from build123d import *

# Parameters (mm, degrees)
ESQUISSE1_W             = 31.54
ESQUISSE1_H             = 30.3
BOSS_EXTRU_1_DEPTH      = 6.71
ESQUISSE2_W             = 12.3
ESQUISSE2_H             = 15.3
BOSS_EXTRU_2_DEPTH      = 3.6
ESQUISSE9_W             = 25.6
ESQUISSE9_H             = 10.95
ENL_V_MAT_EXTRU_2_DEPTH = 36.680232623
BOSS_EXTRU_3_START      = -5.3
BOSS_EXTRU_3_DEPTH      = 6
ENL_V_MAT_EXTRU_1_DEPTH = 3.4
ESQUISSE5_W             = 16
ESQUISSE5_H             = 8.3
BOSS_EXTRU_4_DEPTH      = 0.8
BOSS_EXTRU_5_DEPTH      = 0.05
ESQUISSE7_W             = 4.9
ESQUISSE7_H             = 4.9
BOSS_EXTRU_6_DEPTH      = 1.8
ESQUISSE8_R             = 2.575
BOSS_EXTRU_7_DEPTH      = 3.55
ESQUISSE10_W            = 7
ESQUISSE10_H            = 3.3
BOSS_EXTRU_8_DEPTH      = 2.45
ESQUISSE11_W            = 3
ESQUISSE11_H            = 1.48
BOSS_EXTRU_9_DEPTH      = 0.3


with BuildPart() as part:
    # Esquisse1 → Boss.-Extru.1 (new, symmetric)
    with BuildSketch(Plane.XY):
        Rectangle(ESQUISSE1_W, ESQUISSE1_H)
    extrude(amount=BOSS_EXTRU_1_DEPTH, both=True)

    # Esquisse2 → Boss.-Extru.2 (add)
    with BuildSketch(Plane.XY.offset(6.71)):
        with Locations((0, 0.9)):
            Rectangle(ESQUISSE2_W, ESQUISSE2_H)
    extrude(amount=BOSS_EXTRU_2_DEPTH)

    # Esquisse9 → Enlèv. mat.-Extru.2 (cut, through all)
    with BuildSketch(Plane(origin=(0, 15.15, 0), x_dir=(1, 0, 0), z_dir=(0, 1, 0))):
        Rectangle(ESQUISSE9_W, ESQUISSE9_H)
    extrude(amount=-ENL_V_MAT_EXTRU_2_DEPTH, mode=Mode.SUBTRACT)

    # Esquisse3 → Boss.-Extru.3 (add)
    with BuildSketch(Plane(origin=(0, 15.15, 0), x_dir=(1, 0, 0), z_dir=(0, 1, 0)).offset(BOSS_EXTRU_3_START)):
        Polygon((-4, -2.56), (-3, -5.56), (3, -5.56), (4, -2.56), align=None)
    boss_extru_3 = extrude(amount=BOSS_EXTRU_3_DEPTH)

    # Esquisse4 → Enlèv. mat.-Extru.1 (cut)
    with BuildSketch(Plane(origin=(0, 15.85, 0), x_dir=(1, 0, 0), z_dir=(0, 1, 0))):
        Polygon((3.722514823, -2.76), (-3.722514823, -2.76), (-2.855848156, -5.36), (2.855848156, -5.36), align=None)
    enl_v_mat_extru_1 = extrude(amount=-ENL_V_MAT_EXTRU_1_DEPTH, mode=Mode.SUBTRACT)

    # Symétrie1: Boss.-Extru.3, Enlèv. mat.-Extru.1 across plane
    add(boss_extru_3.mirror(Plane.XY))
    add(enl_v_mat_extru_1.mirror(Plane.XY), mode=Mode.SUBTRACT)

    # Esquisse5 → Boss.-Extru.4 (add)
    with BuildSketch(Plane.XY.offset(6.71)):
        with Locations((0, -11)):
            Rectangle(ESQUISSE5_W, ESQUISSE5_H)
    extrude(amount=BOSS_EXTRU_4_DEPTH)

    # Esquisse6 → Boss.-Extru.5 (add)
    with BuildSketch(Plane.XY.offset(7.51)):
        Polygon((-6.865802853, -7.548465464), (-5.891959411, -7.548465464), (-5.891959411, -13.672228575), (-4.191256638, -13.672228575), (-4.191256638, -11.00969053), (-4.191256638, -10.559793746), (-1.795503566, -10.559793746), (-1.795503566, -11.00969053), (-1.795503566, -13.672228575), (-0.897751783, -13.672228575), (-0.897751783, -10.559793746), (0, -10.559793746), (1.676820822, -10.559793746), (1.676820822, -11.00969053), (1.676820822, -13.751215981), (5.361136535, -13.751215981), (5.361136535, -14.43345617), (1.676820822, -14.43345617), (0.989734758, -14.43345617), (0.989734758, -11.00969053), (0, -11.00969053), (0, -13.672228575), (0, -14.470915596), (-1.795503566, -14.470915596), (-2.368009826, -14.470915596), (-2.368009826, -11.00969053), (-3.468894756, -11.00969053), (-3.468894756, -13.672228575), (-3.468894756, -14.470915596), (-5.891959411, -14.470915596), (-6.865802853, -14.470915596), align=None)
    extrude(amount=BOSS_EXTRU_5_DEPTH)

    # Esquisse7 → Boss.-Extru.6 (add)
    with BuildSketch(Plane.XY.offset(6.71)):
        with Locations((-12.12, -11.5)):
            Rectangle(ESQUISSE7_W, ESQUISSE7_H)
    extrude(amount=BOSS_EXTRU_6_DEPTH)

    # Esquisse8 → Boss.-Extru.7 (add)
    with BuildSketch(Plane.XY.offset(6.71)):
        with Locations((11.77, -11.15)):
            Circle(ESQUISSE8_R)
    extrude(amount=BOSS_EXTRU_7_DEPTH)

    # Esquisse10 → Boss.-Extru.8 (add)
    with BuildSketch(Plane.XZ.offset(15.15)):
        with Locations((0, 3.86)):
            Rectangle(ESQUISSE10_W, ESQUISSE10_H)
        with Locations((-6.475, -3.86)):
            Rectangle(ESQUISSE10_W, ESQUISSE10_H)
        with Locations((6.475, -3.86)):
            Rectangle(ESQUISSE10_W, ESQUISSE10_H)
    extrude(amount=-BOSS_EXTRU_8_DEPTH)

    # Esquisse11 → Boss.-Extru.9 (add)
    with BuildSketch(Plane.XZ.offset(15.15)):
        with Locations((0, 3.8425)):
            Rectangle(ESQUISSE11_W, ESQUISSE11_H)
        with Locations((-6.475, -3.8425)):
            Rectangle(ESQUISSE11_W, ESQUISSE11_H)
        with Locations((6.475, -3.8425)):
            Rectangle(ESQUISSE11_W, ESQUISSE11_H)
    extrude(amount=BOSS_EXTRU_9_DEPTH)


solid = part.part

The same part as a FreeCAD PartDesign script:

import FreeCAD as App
import Part
import Sketcher


def add_polygon(sketch, points):
    """Adds a closed chain of lines whose ends are joined by coincident constraints."""
    first, n = sketch.GeometryCount, len(points)
    for a, b in zip(points, points[1:] + points[:1]):
        sketch.addGeometry(Part.LineSegment(App.Vector(*a, 0), App.Vector(*b, 0)), False)
    for i in range(n):
        sketch.addConstraint(Sketcher.Constraint("Coincident", first + i, 2, first + (i + 1) % n, 1))

doc = App.newDocument("Part")
body = doc.addObject("PartDesign::Body", "Body")

sketch1 = body.newObject("Sketcher::SketchObject", "Sketch")
sketch1.AttachmentSupport = (doc.getObject("XY_Plane"), [""])
sketch1.MapMode = "FlatFace"
add_polygon(sketch1, [(-16, 15), (-16, -15), (16, -15), (16, 15)])
sketch1.addConstraint([
    Sketcher.Constraint("Vertical", 0),
    Sketcher.Constraint("Horizontal", 1),
    Sketcher.Constraint("Vertical", 2),
    Sketcher.Constraint("Horizontal", 3),
    Sketcher.Constraint("Symmetric", 0, 2, 2, 2, -1, 1),
    Sketcher.Constraint("DistanceY", 0, 2, 0, 1, 30.3),
    Sketcher.Constraint("DistanceX", 1, 1, 1, 2, 31.54),
])
pad1 = body.newObject("PartDesign::Pad", "Pad")
pad1.Profile = sketch1
pad1.Length = 13.42
pad1.Midplane = True

sketch2 = body.newObject("Sketcher::SketchObject", "Sketch001")
sketch2.AttachmentSupport = (doc.getObject("XY_Plane"), [""])
sketch2.MapMode = "FlatFace"
sketch2.AttachmentOffset = App.Placement(App.Vector(0, 0, 6.71), App.Rotation())
add_polygon(sketch2, [(-6, 9), (-6, -7), (6, -7), (6, 9)])
sketch2.addConstraint([
    Sketcher.Constraint("Vertical", 0),
    Sketcher.Constraint("Horizontal", 1),
    Sketcher.Constraint("Vertical", 2),
    Sketcher.Constraint("Horizontal", 3),
    Sketcher.Constraint("DistanceX", 1, 1, 1, 2, 12.3),
    Sketcher.Constraint("DistanceY", 0, 2, 0, 1, 15.3),
    Sketcher.Constraint("DistanceX", 0, 2, -1, 1, 6.15),
    Sketcher.Constraint("DistanceY", 0, 2, -1, 1, 6.75),
])
pad2 = body.newObject("PartDesign::Pad", "Pad001")
pad2.Profile = sketch2
pad2.Length = 3.6

sketch3 = body.newObject("Sketcher::SketchObject", "Sketch002")
sketch3.AttachmentSupport = (doc.getObject("XZ_Plane"), [""])
sketch3.MapMode = "FlatFace"
sketch3.AttachmentOffset = App.Placement(App.Vector(0, 0, -15.15), App.Rotation())
add_polygon(sketch3, [(-13, -5), (-13, 5), (13, 5), (13, -5)])
sketch3.addConstraint([
    Sketcher.Constraint("Vertical", 0),
    Sketcher.Constraint("Horizontal", 1),
    Sketcher.Constraint("Vertical", 2),
    Sketcher.Constraint("Horizontal", 3),
    Sketcher.Constraint("Symmetric", 0, 2, 2, 2, -1, 1),
    Sketcher.Constraint("DistanceX", 1, 1, 1, 2, 25.6),
    Sketcher.Constraint("DistanceY", 0, 1, 0, 2, 10.95),
])
pocket1 = body.newObject("PartDesign::Pocket", "Pocket")
pocket1.Profile = sketch3
pocket1.Type = "ThroughAll"
pocket1.Reversed = True

sketch4 = body.newObject("Sketcher::SketchObject", "Sketch003")
sketch4.AttachmentSupport = (doc.getObject("XZ_Plane"), [""])
sketch4.MapMode = "FlatFace"
sketch4.AttachmentOffset = App.Placement(App.Vector(0, 0, -9.85), App.Rotation())
add_polygon(sketch4, [(-4, 2.6), (-3, 5.6), (3, 5.6), (4, 2.6)])
sketch4.addConstraint([
    Sketcher.Constraint("Horizontal", 1),
    Sketcher.Constraint("Horizontal", 3),
    Sketcher.Constraint("Equal", 0, 2),
    Sketcher.Constraint("DistanceX", 1, 1, 1, 2, 6.0),
    Sketcher.Constraint("DistanceX", 3, 2, 3, 1, 8.0),
    Sketcher.Constraint("DistanceX", 0, 2, -1, 1, 3.0),
    Sketcher.Constraint("DistanceY", 2, 2, 1, 2, 3.0),
    Sketcher.Constraint("DistanceY", -1, 1, 0, 2, 5.56),
])
pad3 = body.newObject("PartDesign::Pad", "Pad002")
pad3.Profile = sketch4
pad3.Length = 6
pad3.Reversed = True

sketch5 = body.newObject("Sketcher::SketchObject", "Sketch004")
sketch5.AttachmentSupport = (doc.getObject("XZ_Plane"), [""])
sketch5.MapMode = "FlatFace"
sketch5.AttachmentOffset = App.Placement(App.Vector(0, 0, -15.85), App.Rotation())
add_polygon(sketch5, [(3.7, 2.8), (-3.7, 2.8), (-2.9, 5.4), (2.9, 5.4)])
sketch5.addConstraint([
    Sketcher.Constraint("Horizontal", 0),
    Sketcher.Constraint("Horizontal", 2),
    Sketcher.Constraint("Equal", 1, 3),
    Sketcher.Constraint("DistanceY", 0, 2, 1, 2, 2.6),
    Sketcher.Constraint("DistanceY", -1, 1, 0, 2, 2.76),
    Sketcher.Constraint("DistanceX", 0, 2, 0, 1, 7.44503),
    Sketcher.Constraint("Distance", 1, 2.740641),
    Sketcher.Constraint("DistanceX", 1, 2, -1, 1, 2.855848),
])
pocket2 = body.newObject("PartDesign::Pocket", "Pocket001")
pocket2.Profile = sketch5
pocket2.Length = 3.4
pocket2.Reversed = True
doc.recompute()

mirrored = body.newObject("PartDesign::Mirrored", "Mirrored")
mirrored.Originals = [pad3, pocket2]
mirrored.MirrorPlane = (doc.getObject("XY_Plane"), [""])
body.Tip = mirrored

sketch6 = body.newObject("Sketcher::SketchObject", "Sketch005")
sketch6.AttachmentSupport = (doc.getObject("XY_Plane"), [""])
sketch6.MapMode = "FlatFace"
sketch6.AttachmentOffset = App.Placement(App.Vector(0, 0, 6.71), App.Rotation())
add_polygon(sketch6, [(-8, -7), (-8, -15), (8, -15), (8, -7)])
sketch6.addConstraint([
    Sketcher.Constraint("Vertical", 0),
    Sketcher.Constraint("Horizontal", 1),
    Sketcher.Constraint("Vertical", 2),
    Sketcher.Constraint("Horizontal", 3),
    Sketcher.Constraint("DistanceX", 1, 1, 1, 2, 16.0),
    Sketcher.Constraint("DistanceY", 0, 2, 0, 1, 8.3),
    Sketcher.Constraint("DistanceX", 0, 2, -1, 1, 8.0),
    Sketcher.Constraint("DistanceY", 0, 2, -1, 1, 15.15),
])
pad4 = body.newObject("PartDesign::Pad", "Pad003")
pad4.Profile = sketch6
pad4.Length = 0.8

sketch7 = body.newObject("Sketcher::SketchObject", "Sketch006")
sketch7.AttachmentSupport = (doc.getObject("XY_Plane"), [""])
sketch7.MapMode = "FlatFace"
sketch7.AttachmentOffset = App.Placement(App.Vector(0, 0, 7.51), App.Rotation())
add_polygon(sketch7, [(-5.9, -7.5), (-6.9, -7.5), (-6.9, -14.5), (-3.5, -14.5), (-3.5, -11), (-2.4, -11), (-2.4, -14.5), (0, -14.5), (0, -11), (1, -11), (1, -14.4), (5.4, -14.4), (5.4, -13.8), (1.7, -13.8), (1.7, -10.6), (-0.9, -10.6), (-0.9, -13.7), (-1.8, -13.7), (-1.8, -10.6), (-4.2, -10.6), (-4.2, -13.7), (-5.9, -13.7)])
sketch7.addConstraint([
    Sketcher.Constraint("Horizontal", 0),
    Sketcher.Constraint("Vertical", 1),
    Sketcher.Constraint("Horizontal", 2),
    Sketcher.Constraint("Vertical", 3),
    Sketcher.Constraint("Horizontal", 4),
    Sketcher.Constraint("Vertical", 5),
    Sketcher.Constraint("Horizontal", 6),
    Sketcher.Constraint("Vertical", 7),
    Sketcher.Constraint("Horizontal", 8),
    Sketcher.Constraint("Vertical", 9),
    Sketcher.Constraint("Horizontal", 10),
    Sketcher.Constraint("Vertical", 11),
    Sketcher.Constraint("Horizontal", 12),
    Sketcher.Constraint("Vertical", 13),
    Sketcher.Constraint("Horizontal", 14),
    Sketcher.Constraint("Vertical", 15),
    Sketcher.Constraint("Horizontal", 16),
    Sketcher.Constraint("Vertical", 17),
    Sketcher.Constraint("Horizontal", 18),
    Sketcher.Constraint("Vertical", 19),
    Sketcher.Constraint("Horizontal", 20),
    Sketcher.Constraint("Vertical", 21),
    Sketcher.Constraint("PointOnObject", 6, 2, -2),
    Sketcher.Constraint("Horizontal", 2, 2, 5, 2),
    Sketcher.Constraint("Horizontal", 4, 2, 7, 2),
    Sketcher.Constraint("Horizontal", 14, 2, 17, 2),
    Sketcher.Constraint("Horizontal", 16, 2, 19, 2),
    Sketcher.Constraint("DistanceX", 10, 1, 10, 2, 4.371402),
    Sketcher.Constraint("DistanceX", 2, 1, 2, 2, 3.396908),
    Sketcher.Constraint("DistanceX", 6, 1, 6, 2, 2.36801),
    Sketcher.Constraint("DistanceX", 16, 2, 16, 1, 0.897752),
    Sketcher.Constraint("DistanceY", 1, 2, 1, 1, 6.92245),
    Sketcher.Constraint("DistanceY", 11, 1, 11, 2, 0.68224),
    Sketcher.Constraint("DistanceY", 6, 2, 11, 2, 0.7197),
    Sketcher.Constraint("DistanceX", 0, 2, 0, 1, 0.973843),
    Sketcher.Constraint("DistanceX", 4, 1, 4, 2, 1.100885),
    Sketcher.Constraint("DistanceX", 8, 1, 8, 2, 0.989735),
    Sketcher.Constraint("DistanceX", 12, 2, 12, 1, 3.684316),
    Sketcher.Constraint("DistanceX", 14, 2, 14, 1, 2.574573),
    Sketcher.Constraint("DistanceX", 18, 2, 18, 1, 2.395753),
    Sketcher.Constraint("DistanceY", 3, 1, 3, 2, 3.461225),
    Sketcher.Constraint("DistanceY", 13, 1, 13, 2, 3.191422),
    Sketcher.Constraint("DistanceY", 15, 2, 15, 1, 3.112435),
    Sketcher.Constraint("DistanceY", 3, 2, -1, 1, 11.009691),
])
pad5 = body.newObject("PartDesign::Pad", "Pad004")
pad5.Profile = sketch7
pad5.Length = 0.05

sketch8 = body.newObject("Sketcher::SketchObject", "Sketch007")
sketch8.AttachmentSupport = (doc.getObject("XY_Plane"), [""])
sketch8.MapMode = "FlatFace"
sketch8.AttachmentOffset = App.Placement(App.Vector(0, 0, 6.71), App.Rotation())
add_polygon(sketch8, [(-14.6, -9.1), (-14.6, -13.9), (-9.7, -13.9), (-9.7, -9.1)])
sketch8.addConstraint([
    Sketcher.Constraint("Vertical", 0),
    Sketcher.Constraint("Horizontal", 1),
    Sketcher.Constraint("Vertical", 2),
    Sketcher.Constraint("Horizontal", 3),
    Sketcher.Constraint("Equal", 3, 0),
    Sketcher.Constraint("DistanceX", 1, 1, 1, 2, 4.9),
    Sketcher.Constraint("DistanceX", 0, 2, -1, 1, 14.57),
    Sketcher.Constraint("DistanceY", 0, 2, -1, 1, 13.95),
])
pad6 = body.newObject("PartDesign::Pad", "Pad005")
pad6.Profile = sketch8
pad6.Length = 1.8

sketch9 = body.newObject("Sketcher::SketchObject", "Sketch008")
sketch9.AttachmentSupport = (doc.getObject("XY_Plane"), [""])
sketch9.MapMode = "FlatFace"
sketch9.AttachmentOffset = App.Placement(App.Vector(0, 0, 6.71), App.Rotation())
sketch9.addGeometry(Part.Circle(App.Vector(11.8, -11.2, 0), App.Vector(0, 0, 1), 2.6), False)
sketch9.addConstraint([
    Sketcher.Constraint("Diameter", 0, 5.15),
    Sketcher.Constraint("DistanceX", -1, 1, 0, 3, 11.77),
    Sketcher.Constraint("DistanceY", 0, 3, -1, 1, 11.15),
])
pad7 = body.newObject("PartDesign::Pad", "Pad006")
pad7.Profile = sketch9
pad7.Length = 3.55

sketch10 = body.newObject("Sketcher::SketchObject", "Sketch009")
sketch10.AttachmentSupport = (doc.getObject("XZ_Plane"), [""])
sketch10.MapMode = "FlatFace"
sketch10.AttachmentOffset = App.Placement(App.Vector(0, 0, 15.15), App.Rotation())
add_polygon(sketch10, [(-3.5, 5.5), (-3.5, 2.2), (3.5, 2.2), (3.5, 5.5)])
add_polygon(sketch10, [(-10, -2.2), (-10, -5.5), (-3, -5.5), (-3, -2.2)])
add_polygon(sketch10, [(3, -2.2), (3, -5.5), (10, -5.5), (10, -2.2)])
sketch10.addConstraint([
    Sketcher.Constraint("Vertical", 0),
    Sketcher.Constraint("Horizontal", 1),
    Sketcher.Constraint("Vertical", 2),
    Sketcher.Constraint("Horizontal", 3),
    Sketcher.Constraint("Vertical", 4),
    Sketcher.Constraint("Horizontal", 5),
    Sketcher.Constraint("Vertical", 6),
    Sketcher.Constraint("Horizontal", 7),
    Sketcher.Constraint("Vertical", 8),
    Sketcher.Constraint("Horizontal", 9),
    Sketcher.Constraint("Vertical", 10),
    Sketcher.Constraint("Horizontal", 11),
    Sketcher.Constraint("Symmetric", 5, 2, 8, 2, -2),
    Sketcher.Constraint("Symmetric", 7, 2, 10, 2, -2),
    Sketcher.Constraint("Equal", 3, 5),
    Sketcher.Constraint("Equal", 2, 4),
    Sketcher.Constraint("DistanceX", 1, 1, 1, 2, 7.0),
    Sketcher.Constraint("DistanceY", 0, 2, 0, 1, 3.3),
    Sketcher.Constraint("DistanceX", 0, 2, -1, 1, 3.5),
    Sketcher.Constraint("DistanceY", -1, 1, 0, 2, 2.21),
    Sketcher.Constraint("DistanceY", 4, 2, -1, 1, 5.51),
    Sketcher.Constraint("DistanceX", 5, 2, 8, 2, 5.95),
])
pad8 = body.newObject("PartDesign::Pad", "Pad007")
pad8.Profile = sketch10
pad8.Length = 2.45
pad8.Reversed = True

sketch11 = body.newObject("Sketcher::SketchObject", "Sketch010")
sketch11.AttachmentSupport = (doc.getObject("XZ_Plane"), [""])
sketch11.MapMode = "FlatFace"
sketch11.AttachmentOffset = App.Placement(App.Vector(0, 0, 15.15), App.Rotation())
add_polygon(sketch11, [(-1.5, 4.6), (-1.5, 3.1), (1.5, 3.1), (1.5, 4.6)])
add_polygon(sketch11, [(-8, -3.1), (-8, -4.6), (-5, -4.6), (-5, -3.1)])
add_polygon(sketch11, [(5, -3.1), (5, -4.6), (8, -4.6), (8, -3.1)])
sketch11.addConstraint([
    Sketcher.Constraint("Vertical", 0),
    Sketcher.Constraint("Horizontal", 1),
    Sketcher.Constraint("Vertical", 2),
    Sketcher.Constraint("Horizontal", 3),
    Sketcher.Constraint("Vertical", 4),
    Sketcher.Constraint("Horizontal", 5),
    Sketcher.Constraint("Vertical", 6),
    Sketcher.Constraint("Horizontal", 7),
    Sketcher.Constraint("Vertical", 8),
    Sketcher.Constraint("Horizontal", 9),
    Sketcher.Constraint("Vertical", 10),
    Sketcher.Constraint("Horizontal", 11),
    Sketcher.Constraint("Symmetric", 5, 2, 8, 2, -2),
    Sketcher.Constraint("Symmetric", 7, 2, 10, 2, -2),
    Sketcher.Constraint("Equal", 3, 5),
    Sketcher.Constraint("Equal", 2, 4),
    Sketcher.Constraint("DistanceX", 1, 1, 1, 2, 3.0),
    Sketcher.Constraint("DistanceY", 0, 2, 0, 1, 1.48),
    Sketcher.Constraint("DistanceX", 0, 2, -1, 1, 1.5),
    Sketcher.Constraint("DistanceX", 5, 2, 8, 2, 9.95),
    Sketcher.Constraint("DistanceY", 4, 2, 0, 2, 7.685),
    Sketcher.Constraint("DistanceY", -1, 1, 0, 2, 3.1025),
])
pad9 = body.newObject("PartDesign::Pad", "Pad008")
pad9.Profile = sketch11
pad9.Length = 0.3

doc.recompute()
